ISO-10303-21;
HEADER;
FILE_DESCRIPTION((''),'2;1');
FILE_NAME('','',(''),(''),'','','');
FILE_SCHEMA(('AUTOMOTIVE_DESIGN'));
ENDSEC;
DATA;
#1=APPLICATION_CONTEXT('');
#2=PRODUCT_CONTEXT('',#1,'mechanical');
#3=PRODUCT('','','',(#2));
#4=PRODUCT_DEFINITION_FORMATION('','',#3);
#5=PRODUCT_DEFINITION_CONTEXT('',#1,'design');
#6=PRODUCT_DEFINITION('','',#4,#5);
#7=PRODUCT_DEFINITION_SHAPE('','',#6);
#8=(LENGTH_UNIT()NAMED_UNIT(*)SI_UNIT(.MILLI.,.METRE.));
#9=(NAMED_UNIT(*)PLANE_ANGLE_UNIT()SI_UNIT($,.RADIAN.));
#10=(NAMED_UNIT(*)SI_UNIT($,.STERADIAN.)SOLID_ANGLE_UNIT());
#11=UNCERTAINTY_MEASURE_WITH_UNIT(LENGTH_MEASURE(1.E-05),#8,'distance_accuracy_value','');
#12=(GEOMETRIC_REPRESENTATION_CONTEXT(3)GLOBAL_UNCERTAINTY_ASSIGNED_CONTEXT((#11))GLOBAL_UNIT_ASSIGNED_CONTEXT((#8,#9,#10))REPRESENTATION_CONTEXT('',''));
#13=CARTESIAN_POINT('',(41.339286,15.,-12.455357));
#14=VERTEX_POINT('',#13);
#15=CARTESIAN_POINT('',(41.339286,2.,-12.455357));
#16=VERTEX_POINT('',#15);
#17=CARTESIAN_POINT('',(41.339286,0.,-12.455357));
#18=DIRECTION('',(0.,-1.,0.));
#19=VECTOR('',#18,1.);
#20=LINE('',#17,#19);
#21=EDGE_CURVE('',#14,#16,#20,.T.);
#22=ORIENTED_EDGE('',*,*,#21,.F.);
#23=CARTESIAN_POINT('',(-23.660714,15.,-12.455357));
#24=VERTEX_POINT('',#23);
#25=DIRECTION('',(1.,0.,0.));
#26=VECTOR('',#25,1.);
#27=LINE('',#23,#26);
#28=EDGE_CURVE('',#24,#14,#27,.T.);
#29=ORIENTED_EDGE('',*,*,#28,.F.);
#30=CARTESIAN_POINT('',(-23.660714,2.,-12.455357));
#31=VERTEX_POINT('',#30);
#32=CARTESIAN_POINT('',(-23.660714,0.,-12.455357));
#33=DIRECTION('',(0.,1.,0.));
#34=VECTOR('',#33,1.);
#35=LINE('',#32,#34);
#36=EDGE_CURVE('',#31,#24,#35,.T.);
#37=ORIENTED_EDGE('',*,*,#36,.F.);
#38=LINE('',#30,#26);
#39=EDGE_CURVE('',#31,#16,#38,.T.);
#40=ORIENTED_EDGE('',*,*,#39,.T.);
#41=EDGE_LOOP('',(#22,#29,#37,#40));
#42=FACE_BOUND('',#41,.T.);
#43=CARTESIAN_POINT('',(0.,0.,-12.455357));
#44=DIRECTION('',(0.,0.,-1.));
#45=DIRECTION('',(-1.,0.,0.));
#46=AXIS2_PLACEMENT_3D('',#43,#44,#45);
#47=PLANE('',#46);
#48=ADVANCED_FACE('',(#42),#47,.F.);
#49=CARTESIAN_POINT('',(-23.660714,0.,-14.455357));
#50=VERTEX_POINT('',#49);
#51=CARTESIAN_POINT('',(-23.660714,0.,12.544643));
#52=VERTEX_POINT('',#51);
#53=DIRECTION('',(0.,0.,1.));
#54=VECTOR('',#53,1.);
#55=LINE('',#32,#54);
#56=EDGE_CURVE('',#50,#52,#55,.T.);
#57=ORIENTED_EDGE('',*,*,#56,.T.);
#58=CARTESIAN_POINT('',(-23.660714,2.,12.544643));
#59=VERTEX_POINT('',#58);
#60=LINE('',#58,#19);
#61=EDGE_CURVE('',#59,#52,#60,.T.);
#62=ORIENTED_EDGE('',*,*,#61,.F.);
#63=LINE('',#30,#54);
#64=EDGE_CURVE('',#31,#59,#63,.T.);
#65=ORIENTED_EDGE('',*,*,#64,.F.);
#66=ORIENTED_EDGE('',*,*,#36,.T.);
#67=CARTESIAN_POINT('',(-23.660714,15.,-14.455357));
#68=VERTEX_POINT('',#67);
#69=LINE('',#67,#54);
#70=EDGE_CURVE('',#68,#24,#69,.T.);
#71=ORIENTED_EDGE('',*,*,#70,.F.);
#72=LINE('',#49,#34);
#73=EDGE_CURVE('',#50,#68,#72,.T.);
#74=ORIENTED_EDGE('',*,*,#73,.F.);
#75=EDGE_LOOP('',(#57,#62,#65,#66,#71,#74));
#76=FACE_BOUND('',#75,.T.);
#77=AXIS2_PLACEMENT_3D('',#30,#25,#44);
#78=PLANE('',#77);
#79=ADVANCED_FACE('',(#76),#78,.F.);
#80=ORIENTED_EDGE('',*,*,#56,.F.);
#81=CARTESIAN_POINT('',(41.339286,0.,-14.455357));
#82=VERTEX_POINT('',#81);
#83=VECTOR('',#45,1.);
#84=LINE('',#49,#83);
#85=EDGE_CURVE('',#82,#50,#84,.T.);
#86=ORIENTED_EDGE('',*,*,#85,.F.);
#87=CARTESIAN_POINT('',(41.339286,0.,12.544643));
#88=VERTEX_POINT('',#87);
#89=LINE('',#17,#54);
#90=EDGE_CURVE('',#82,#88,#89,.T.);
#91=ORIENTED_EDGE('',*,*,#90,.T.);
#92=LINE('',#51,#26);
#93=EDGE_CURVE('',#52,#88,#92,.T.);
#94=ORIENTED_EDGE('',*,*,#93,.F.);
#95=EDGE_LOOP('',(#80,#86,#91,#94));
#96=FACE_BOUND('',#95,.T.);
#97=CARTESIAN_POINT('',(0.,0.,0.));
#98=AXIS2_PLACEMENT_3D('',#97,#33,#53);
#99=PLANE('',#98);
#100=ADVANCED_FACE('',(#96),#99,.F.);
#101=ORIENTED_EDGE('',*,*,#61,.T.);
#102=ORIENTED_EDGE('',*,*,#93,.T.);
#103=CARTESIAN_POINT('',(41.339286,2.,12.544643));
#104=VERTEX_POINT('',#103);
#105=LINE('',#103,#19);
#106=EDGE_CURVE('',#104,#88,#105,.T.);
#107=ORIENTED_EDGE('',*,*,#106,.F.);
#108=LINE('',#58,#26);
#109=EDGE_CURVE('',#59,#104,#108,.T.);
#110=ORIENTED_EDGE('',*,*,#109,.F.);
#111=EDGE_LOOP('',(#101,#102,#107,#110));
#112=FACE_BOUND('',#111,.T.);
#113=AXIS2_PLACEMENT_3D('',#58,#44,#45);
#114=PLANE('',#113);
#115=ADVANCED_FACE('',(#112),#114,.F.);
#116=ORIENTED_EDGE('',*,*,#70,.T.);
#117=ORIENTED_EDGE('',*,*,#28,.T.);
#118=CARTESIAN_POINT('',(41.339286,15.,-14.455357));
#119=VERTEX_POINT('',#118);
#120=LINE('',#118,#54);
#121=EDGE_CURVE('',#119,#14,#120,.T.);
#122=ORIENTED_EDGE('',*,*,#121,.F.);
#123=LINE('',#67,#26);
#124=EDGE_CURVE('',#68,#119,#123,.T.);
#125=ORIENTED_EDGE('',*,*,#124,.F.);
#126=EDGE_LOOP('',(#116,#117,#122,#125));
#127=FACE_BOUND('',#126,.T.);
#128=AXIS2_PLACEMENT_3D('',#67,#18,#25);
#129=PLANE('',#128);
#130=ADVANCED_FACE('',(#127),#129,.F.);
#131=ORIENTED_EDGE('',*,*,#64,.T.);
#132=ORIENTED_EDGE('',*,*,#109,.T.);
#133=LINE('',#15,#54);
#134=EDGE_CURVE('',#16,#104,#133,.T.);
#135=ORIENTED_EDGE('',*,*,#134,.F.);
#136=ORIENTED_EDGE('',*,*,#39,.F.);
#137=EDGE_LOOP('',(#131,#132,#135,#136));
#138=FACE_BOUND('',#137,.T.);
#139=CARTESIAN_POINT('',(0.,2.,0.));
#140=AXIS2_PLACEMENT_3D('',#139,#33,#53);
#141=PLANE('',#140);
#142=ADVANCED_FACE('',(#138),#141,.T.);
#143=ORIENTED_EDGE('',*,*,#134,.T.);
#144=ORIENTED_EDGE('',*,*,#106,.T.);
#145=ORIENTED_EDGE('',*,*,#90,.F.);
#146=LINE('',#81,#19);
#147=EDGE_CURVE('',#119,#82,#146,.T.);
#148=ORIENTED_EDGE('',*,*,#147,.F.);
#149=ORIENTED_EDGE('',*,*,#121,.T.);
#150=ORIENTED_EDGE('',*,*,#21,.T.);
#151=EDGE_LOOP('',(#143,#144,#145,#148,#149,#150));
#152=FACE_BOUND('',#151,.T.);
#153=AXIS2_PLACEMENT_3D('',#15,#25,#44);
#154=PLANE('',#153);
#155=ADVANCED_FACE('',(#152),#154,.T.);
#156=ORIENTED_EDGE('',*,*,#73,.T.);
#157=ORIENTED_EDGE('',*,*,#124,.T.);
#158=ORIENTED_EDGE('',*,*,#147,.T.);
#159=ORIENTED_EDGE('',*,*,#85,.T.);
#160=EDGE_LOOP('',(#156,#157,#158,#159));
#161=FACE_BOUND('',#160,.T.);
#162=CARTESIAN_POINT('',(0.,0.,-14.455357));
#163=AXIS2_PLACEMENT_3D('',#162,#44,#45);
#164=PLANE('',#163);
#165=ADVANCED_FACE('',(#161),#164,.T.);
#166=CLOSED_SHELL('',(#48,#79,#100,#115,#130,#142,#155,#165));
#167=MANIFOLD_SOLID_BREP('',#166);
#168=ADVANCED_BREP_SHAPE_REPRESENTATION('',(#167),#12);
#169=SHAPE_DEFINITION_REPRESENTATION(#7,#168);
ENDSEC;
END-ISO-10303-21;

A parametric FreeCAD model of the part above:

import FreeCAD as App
import Part
import Sketcher
Q = App.Units.Quantity


def add_polygon(sketch, points):
    """Adds a closed chain of lines whose ends are joined by coincident constraints."""
    first, n = sketch.GeometryCount, len(points)
    for a, b in zip(points, points[1:] + points[:1]):
        sketch.addGeometry(Part.LineSegment(App.Vector(*a, 0), App.Vector(*b, 0)), False)
    for i in range(n):
        sketch.addConstraint(Sketcher.Constraint("Coincident", first + i, 2, first + (i + 1) % n, 1))

doc = App.newDocument("Part")
params = doc.addObject("Spreadsheet::Sheet", "Params")
for row, (alias, value) in enumerate([
    ("sketch1_width", "65 mm"),
    ("sketch1_height", "25 mm"),
    ("pad1_length", "2 mm"),
    ("sketch2_width", "65 mm"),
    ("sketch2_height", "15 mm"),
    ("pad2_length", "2 mm"),
], start=1):
    params.set(f"A{row}", alias)
    params.set(f"B{row}", "=" + value)
    params.setAlias(f"B{row}", alias)

body = doc.addObject("PartDesign::Body", "Body")

sketch1 = doc.addObject("Sketcher::SketchObject", "Sketch")
body.addObject(sketch1)
sketch1.AttachmentSupport = (doc.XZ_Plane, [""])
sketch1.MapMode = "FlatFace"
add_polygon(sketch1, [(-24, -12), (-24, 13), (41, 13), (41, -12)])
sketch1.addConstraint([
    Sketcher.Constraint("Vertical", 0),
    Sketcher.Constraint("Horizontal", 1),
    Sketcher.Constraint("Vertical", 2),
    Sketcher.Constraint("Horizontal", 3),
    Sketcher.Constraint("DistanceX", 1, 1, 1, 2, Q("65 mm")),
    Sketcher.Constraint("DistanceY", 0, 1, 0, 2, Q("25 mm")),
    Sketcher.Constraint("DistanceX", 0, 2, -1, 1, Q("23.660714 mm")),
    Sketcher.Constraint("DistanceY", -1, 1, 0, 2, Q("12.544643 mm")),
])
sketch1.setExpression("Constraints[8]", "Params.sketch1_width")
sketch1.setExpression("Constraints[9]", "Params.sketch1_height")
pad1 = doc.addObject("PartDesign::Pad", "Pad")
body.addObject(pad1)
pad1.Profile = sketch1
pad1.setExpression("Length", "Params.pad1_length")
pad1.Reversed = True

sketch2 = doc.addObject("Sketcher::SketchObject", "Sketch001")
body.addObject(sketch2)
sketch2.AttachmentSupport = (doc.XY_Plane, [""])
sketch2.MapMode = "FlatFace"
sketch2.AttachmentOffset = App.Placement(App.Vector(0, 0, -12.455357), App.Rotation())
add_polygon(sketch2, [(41, 15), (41, 0), (-24, 0), (-24, 15)])
sketch2.addConstraint([
    Sketcher.Constraint("Vertical", 0),
    Sketcher.Constraint("Horizontal", 1),
    Sketcher.Constraint("Vertical", 2),
    Sketcher.Constraint("Horizontal", 3),
    Sketcher.Constraint("PointOnObject", 0, 2, -1),
    Sketcher.Constraint("DistanceX", 1, 2, 1, 1, Q("65 mm")),
    Sketcher.Constraint("DistanceY", 0, 2, 0, 1, Q("15 mm")),
    Sketcher.Constraint("DistanceX", -1, 1, 0, 2, Q("41.339286 mm")),
])
sketch2.setExpression("Constraints[9]", "Params.sketch2_width")
sketch2.setExpression("Constraints[10]", "Params.sketch2_height")
pad2 = doc.addObject("PartDesign::Pad", "Pad001")
body.addObject(pad2)
pad2.Profile = sketch2
pad2.setExpression("Length", "Params.pad2_length")
pad2.Reversed = True

doc.recompute()
